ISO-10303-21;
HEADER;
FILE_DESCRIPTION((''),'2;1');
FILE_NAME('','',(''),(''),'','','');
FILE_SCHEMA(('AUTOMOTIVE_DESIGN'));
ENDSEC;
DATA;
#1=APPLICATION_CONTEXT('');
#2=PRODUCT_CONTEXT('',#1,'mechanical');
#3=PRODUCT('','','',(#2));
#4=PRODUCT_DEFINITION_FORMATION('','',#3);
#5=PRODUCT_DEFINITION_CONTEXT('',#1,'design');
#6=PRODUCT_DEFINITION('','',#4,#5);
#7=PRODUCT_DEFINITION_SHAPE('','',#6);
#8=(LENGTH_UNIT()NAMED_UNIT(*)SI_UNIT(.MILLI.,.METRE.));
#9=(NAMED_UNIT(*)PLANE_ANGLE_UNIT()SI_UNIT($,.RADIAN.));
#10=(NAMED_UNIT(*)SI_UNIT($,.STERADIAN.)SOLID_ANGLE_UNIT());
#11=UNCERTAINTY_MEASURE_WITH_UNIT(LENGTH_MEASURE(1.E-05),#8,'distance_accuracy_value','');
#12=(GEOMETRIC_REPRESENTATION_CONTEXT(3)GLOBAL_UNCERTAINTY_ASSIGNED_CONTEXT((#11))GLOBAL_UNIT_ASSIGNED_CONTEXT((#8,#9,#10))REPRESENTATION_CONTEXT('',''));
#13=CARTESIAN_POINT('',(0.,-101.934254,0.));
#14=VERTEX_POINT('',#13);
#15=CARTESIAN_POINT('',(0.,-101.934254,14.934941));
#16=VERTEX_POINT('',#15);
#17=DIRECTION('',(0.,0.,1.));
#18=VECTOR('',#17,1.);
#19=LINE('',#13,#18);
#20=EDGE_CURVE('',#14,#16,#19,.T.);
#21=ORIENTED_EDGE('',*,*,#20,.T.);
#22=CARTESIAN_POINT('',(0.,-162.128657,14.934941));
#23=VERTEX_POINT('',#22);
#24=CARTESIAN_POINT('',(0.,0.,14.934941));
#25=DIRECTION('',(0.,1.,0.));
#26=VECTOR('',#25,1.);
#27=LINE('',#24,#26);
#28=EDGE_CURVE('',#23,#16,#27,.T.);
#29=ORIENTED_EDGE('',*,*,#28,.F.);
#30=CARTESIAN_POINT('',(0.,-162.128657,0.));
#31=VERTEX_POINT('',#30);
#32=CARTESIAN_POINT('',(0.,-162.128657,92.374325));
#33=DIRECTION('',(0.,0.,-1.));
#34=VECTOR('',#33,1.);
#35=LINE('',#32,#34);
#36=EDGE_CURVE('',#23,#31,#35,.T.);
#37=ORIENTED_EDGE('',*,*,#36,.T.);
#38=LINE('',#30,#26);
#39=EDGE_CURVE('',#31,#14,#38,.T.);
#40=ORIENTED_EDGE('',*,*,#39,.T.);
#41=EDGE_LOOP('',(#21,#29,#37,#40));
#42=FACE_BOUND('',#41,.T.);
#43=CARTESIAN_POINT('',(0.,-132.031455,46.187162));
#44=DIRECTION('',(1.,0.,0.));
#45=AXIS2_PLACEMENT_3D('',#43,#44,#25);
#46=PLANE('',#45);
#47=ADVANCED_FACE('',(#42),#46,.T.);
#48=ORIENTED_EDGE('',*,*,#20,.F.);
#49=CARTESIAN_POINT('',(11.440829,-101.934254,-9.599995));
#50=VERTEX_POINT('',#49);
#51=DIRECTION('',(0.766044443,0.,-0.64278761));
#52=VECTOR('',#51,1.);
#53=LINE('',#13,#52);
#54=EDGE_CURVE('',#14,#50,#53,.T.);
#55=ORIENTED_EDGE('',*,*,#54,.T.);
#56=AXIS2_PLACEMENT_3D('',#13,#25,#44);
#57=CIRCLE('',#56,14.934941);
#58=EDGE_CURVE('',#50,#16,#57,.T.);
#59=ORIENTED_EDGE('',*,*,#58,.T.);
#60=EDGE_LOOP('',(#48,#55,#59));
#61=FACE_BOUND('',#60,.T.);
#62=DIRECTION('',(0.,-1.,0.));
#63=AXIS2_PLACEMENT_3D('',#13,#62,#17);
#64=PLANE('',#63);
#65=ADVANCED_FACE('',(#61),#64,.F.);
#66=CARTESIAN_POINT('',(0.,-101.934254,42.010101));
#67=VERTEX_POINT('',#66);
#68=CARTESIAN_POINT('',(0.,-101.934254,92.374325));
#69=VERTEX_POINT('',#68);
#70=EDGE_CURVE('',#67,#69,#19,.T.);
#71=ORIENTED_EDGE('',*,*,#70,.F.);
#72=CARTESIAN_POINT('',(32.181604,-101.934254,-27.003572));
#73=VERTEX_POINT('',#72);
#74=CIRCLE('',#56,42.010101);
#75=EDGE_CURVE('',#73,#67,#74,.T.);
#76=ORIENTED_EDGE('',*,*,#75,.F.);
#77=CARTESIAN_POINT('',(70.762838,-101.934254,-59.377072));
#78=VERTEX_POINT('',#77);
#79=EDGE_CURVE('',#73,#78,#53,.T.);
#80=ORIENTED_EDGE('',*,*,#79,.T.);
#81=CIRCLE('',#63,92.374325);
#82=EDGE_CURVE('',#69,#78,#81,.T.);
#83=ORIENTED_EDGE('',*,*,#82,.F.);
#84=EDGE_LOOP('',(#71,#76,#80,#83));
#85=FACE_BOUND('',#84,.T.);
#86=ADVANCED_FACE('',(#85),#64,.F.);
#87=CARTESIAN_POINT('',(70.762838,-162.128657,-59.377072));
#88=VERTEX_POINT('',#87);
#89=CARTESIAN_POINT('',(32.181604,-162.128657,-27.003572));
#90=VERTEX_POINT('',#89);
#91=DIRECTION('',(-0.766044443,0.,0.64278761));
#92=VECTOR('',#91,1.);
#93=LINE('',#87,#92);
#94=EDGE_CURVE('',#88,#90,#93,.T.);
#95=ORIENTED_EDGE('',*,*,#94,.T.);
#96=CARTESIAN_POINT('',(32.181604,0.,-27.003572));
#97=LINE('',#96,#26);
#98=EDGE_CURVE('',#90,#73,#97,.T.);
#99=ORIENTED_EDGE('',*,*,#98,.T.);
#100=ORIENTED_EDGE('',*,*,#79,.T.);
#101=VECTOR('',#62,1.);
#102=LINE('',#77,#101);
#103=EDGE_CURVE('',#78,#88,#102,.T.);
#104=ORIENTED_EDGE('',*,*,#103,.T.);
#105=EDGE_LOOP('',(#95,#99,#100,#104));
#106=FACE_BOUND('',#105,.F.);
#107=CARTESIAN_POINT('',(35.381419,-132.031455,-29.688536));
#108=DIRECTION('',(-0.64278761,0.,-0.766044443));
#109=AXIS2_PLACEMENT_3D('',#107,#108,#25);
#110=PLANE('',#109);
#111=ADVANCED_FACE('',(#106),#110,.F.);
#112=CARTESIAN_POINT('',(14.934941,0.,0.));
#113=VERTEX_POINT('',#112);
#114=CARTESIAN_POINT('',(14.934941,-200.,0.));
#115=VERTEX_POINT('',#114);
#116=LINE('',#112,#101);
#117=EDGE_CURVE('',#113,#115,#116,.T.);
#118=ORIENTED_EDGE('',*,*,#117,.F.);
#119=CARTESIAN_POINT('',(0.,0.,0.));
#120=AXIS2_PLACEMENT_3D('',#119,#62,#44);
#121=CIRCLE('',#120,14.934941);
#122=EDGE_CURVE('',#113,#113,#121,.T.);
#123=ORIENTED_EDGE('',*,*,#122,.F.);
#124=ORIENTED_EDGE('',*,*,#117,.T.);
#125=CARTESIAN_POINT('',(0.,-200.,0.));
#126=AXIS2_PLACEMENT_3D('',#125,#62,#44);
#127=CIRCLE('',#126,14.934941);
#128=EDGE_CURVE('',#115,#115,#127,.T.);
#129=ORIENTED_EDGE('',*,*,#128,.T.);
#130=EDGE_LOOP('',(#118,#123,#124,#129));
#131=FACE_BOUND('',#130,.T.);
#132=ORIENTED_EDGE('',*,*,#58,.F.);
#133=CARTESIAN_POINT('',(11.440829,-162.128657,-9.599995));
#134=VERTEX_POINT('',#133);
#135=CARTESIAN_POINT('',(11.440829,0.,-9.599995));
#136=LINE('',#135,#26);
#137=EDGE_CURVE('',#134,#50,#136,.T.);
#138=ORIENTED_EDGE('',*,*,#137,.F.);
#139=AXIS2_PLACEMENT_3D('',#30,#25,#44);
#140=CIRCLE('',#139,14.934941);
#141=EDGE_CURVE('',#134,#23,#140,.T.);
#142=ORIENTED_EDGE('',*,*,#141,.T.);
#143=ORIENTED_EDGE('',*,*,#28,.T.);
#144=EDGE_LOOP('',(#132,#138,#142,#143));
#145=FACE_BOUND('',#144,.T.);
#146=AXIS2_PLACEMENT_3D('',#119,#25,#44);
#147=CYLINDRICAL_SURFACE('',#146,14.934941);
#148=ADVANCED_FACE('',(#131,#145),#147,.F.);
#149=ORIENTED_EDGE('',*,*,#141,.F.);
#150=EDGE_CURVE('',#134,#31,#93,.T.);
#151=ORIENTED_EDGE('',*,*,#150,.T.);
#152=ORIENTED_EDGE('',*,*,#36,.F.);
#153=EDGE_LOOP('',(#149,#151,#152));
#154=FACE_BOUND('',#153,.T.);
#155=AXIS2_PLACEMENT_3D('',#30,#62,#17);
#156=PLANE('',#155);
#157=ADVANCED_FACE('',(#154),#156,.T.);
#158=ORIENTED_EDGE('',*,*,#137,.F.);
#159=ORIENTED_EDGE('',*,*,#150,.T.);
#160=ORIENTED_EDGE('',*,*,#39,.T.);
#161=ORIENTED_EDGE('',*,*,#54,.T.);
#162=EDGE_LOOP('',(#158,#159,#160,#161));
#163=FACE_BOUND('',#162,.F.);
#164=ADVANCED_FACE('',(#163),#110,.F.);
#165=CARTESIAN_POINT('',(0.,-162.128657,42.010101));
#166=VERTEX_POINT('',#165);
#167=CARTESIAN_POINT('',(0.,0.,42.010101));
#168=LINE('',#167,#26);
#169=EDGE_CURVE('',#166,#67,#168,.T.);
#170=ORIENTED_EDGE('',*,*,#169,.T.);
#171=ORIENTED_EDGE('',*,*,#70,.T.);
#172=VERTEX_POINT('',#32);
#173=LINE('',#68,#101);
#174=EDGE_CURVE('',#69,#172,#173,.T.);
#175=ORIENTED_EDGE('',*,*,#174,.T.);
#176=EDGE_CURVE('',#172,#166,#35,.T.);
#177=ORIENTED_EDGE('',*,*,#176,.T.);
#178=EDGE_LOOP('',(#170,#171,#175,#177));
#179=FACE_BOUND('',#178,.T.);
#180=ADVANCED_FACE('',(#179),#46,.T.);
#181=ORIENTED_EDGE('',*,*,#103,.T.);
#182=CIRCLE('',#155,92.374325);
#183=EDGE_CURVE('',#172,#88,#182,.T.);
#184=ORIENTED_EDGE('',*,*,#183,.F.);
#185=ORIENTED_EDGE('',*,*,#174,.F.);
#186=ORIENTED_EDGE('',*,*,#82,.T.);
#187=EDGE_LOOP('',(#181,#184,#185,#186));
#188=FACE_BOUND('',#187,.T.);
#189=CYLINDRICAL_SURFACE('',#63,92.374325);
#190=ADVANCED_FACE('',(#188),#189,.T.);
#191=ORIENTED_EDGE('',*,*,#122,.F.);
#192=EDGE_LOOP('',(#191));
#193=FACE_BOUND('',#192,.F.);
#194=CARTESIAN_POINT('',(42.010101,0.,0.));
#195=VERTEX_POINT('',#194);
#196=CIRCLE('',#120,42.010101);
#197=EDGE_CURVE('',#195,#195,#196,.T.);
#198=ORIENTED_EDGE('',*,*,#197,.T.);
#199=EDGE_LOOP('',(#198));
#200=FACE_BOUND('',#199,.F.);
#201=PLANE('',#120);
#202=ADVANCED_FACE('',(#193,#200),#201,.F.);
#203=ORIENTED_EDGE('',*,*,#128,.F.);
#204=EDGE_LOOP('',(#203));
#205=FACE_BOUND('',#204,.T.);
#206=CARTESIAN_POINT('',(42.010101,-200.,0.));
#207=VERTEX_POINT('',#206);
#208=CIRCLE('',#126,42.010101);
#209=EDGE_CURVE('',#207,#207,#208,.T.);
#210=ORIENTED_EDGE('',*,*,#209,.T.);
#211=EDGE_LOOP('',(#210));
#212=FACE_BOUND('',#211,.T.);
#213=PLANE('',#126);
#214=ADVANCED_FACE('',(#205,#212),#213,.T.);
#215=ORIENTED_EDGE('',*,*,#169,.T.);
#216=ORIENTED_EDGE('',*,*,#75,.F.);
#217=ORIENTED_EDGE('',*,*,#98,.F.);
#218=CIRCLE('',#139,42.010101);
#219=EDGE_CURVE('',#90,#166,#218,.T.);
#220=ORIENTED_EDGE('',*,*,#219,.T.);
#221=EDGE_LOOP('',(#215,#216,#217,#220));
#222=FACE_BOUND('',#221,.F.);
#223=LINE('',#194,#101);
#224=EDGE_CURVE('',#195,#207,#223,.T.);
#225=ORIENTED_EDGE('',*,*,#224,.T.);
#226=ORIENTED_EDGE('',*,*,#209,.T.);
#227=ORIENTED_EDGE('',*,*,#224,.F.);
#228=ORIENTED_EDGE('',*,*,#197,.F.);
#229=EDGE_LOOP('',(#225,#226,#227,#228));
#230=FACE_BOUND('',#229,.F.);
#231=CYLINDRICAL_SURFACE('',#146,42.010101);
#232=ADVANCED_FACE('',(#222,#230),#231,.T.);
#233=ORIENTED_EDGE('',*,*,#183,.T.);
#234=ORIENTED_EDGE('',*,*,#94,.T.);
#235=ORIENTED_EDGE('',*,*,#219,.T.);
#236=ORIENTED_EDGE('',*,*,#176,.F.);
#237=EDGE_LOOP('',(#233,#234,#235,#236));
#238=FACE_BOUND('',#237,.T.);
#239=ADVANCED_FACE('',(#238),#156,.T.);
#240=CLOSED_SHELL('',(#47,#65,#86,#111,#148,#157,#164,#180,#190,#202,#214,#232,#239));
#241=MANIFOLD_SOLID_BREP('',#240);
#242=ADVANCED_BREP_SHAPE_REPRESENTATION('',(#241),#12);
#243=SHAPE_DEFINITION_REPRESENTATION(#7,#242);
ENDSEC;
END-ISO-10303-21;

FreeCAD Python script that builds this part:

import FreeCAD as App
import Part
import Sketcher

V = App.Vector


def add_polygon(sketch, points):
    """Adds a closed chain of lines whose ends are joined by coincident constraints."""
    first, n = sketch.GeometryCount, len(points)
    for a, b in zip(points, points[1:] + points[:1]):
        sketch.addGeometry(Part.LineSegment(App.Vector(*a, 0), App.Vector(*b, 0)), False)
    for i in range(n):
        sketch.addConstraint(Sketcher.Constraint("Coincident", first + i, 2, first + (i + 1) % n, 1))

doc = App.newDocument("Part")
body = doc.addObject("PartDesign::Body", "Body")

# Sketch on XZ plane
sketch1 = doc.addObject("Sketcher::SketchObject", "Sketch")
body.addObject(sketch1)
sketch1.AttachmentSupport = (doc.XZ_Plane, [""])
sketch1.MapMode = "FlatFace"
sketch1.addGeometry([
    Part.Circle(V(0, 0, 0), V(0, 0, 1), 42),
    Part.Circle(V(0, 0, 0), V(0, 0, 1), 15),
], False)
sketch1.addConstraint([
    Sketcher.Constraint("Coincident", 0, 3, -1, 1),
    Sketcher.Constraint("Coincident", 1, 3, -1, 1),
    Sketcher.Constraint("Diameter", 0, 84.020202),
    Sketcher.Constraint("Diameter", 1, 29.869882),
])
pad1 = doc.addObject("PartDesign::Pad", "Pad")
body.addObject(pad1)
pad1.Profile = sketch1
pad1.Length = 200

# Sketch on YZ plane
sketch2 = doc.addObject("Sketcher::SketchObject", "Sketch001")
body.addObject(sketch2)
sketch2.AttachmentSupport = (doc.YZ_Plane, [""])
sketch2.MapMode = "FlatFace"
add_polygon(sketch2, [(-162, 0), (-102, 0), (-102, 92), (-162, 92)])  # lines 0-3
sketch2.addConstraint([
    Sketcher.Constraint("Horizontal", 0),
    Sketcher.Constraint("Vertical", 1),
    Sketcher.Constraint("Horizontal", 2),
    Sketcher.Constraint("Vertical", 3),
    Sketcher.Constraint("PointOnObject", 0, 2, -1),
    Sketcher.Constraint("DistanceX", 0, 1, 0, 2, 60.194403),
    Sketcher.Constraint("DistanceY", 1, 1, 1, 2, 92.374325),
    Sketcher.Constraint("DistanceX", 0, 2, -1, 1, 101.934254),
])
revolution = doc.addObject("PartDesign::Revolution", "Revolution")
body.addObject(revolution)
revolution.Profile = sketch2
revolution.ReferenceAxis = (sketch2, ["H_Axis"])
revolution.Angle = 230
revolution.Reversed = True

doc.recompute()
